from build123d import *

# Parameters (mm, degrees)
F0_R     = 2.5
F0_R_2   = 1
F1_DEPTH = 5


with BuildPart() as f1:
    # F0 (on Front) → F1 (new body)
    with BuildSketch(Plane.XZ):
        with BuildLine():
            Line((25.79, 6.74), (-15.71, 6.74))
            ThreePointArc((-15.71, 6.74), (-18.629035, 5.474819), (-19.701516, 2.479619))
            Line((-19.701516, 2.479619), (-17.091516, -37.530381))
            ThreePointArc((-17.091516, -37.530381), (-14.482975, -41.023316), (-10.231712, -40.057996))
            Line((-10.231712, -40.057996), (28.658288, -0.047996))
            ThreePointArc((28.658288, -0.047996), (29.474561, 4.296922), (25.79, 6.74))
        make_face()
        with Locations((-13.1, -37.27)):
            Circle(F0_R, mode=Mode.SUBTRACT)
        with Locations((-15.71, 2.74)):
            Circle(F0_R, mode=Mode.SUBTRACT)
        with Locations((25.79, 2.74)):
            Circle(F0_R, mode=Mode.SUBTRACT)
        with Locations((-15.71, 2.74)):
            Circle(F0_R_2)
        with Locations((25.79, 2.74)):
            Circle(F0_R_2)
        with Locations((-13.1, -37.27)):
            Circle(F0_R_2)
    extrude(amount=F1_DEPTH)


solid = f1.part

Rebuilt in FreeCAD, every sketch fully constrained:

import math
import FreeCAD as App
import Part
import Sketcher

V = App.Vector
Q = App.Units.Quantity

doc = App.newDocument("Part")
body = doc.addObject("PartDesign::Body", "Body")
body.AllowCompound = True

# Sketch on XZ plane
sketch1 = body.newObject("Sketcher::SketchObject", "Sketch")
sketch1.AttachmentSupport = (doc.getObject("XZ_Plane"), [""])
sketch1.MapMode = "FlatFace"
sketch1.addGeometry([
    Part.LineSegment(V(25.8, 6.7, 0), V(-15.7, 6.7, 0)),  # 0
    Part.ArcOfCircle(Part.Circle(V(-15.7, 2.7, 0), V(0, 0, 1), 4), math.radians(90), math.radians(184)),  # 1
    Part.LineSegment(V(-19.7, 2.5, 0), V(-17.1, -37.5, 0)),  # 2
    Part.ArcOfCircle(Part.Circle(V(-13.1, -37.3, 0), V(0, 0, 1), 4), math.radians(-176), math.radians(-44)),  # 3
    Part.LineSegment(V(-10.2, -40.1, 0), V(28.7, 0, 0)),  # 4
    Part.ArcOfCircle(Part.Circle(V(25.8, 2.7, 0), V(0, 0, 1), 4), math.radians(-44), math.radians(90)),  # 5
    Part.Circle(V(-13.1, -37.3, 0), V(0, 0, 1), 2.5),  # 6
    Part.Circle(V(-15.7, 2.7, 0), V(0, 0, 1), 2.5),  # 7
    Part.Circle(V(25.8, 2.7, 0), V(0, 0, 1), 2.5),  # 8
    Part.Circle(V(-15.7, 2.7, 0), V(0, 0, 1), 1),  # 9
    Part.Circle(V(25.8, 2.7, 0), V(0, 0, 1), 1),  # 10
    Part.Circle(V(-13.1, -37.3, 0), V(0, 0, 1), 1),  # 11
], False)
sketch1.addConstraint([
    Sketcher.Constraint("Tangent", 0, 2, 1, 1),
    Sketcher.Constraint("Tangent", 1, 2, 2, 1),
    Sketcher.Constraint("Tangent", 2, 2, 3, 1),
    Sketcher.Constraint("Tangent", 3, 2, 4, 1),
    Sketcher.Constraint("Tangent", 4, 2, 5, 1),
    Sketcher.Constraint("Tangent", 5, 2, 0, 1),
    Sketcher.Constraint("Horizontal", 0),
    Sketcher.Constraint("Coincident", 6, 3, 3, 3),
    Sketcher.Constraint("Coincident", 7, 3, 1, 3),
    Sketcher.Constraint("Coincident", 8, 3, 5, 3),
    Sketcher.Constraint("Coincident", 9, 3, 1, 3),
    Sketcher.Constraint("Coincident", 10, 3, 5, 3),
    Sketcher.Constraint("Coincident", 11, 3, 3, 3),
    Sketcher.Constraint("Equal", 1, 3),
    Sketcher.Constraint("Equal", 3, 5),
    Sketcher.Constraint("Equal", 6, 7),
    Sketcher.Constraint("Equal", 7, 8),
    Sketcher.Constraint("Equal", 9, 10),
    Sketcher.Constraint("Equal", 10, 11),
    Sketcher.Constraint("Diameter", 6, Q("5 mm")),
    Sketcher.Constraint("Diameter", 9, Q("2 mm")),
    Sketcher.Constraint("Radius", 1, Q("4 mm")),
    Sketcher.Constraint("DistanceX", 0, 2, 0, 1, Q("41.5 mm")),
    Sketcher.Constraint("DistanceX", 3, 3, -1, 1, Q("13.1 mm")),
    Sketcher.Constraint("DistanceX", 1, 3, -1, 1, Q("15.71 mm")),
    Sketcher.Constraint("DistanceY", -1, 1, 1, 3, Q("2.74 mm")),
    Sketcher.Constraint("DistanceY", 3, 3, -1, 1, Q("37.270001 mm")),
])
pad1 = body.newObject("PartDesign::Pad", "Pad")
pad1.Profile = sketch1
pad1.Length = 5

doc.recompute()
